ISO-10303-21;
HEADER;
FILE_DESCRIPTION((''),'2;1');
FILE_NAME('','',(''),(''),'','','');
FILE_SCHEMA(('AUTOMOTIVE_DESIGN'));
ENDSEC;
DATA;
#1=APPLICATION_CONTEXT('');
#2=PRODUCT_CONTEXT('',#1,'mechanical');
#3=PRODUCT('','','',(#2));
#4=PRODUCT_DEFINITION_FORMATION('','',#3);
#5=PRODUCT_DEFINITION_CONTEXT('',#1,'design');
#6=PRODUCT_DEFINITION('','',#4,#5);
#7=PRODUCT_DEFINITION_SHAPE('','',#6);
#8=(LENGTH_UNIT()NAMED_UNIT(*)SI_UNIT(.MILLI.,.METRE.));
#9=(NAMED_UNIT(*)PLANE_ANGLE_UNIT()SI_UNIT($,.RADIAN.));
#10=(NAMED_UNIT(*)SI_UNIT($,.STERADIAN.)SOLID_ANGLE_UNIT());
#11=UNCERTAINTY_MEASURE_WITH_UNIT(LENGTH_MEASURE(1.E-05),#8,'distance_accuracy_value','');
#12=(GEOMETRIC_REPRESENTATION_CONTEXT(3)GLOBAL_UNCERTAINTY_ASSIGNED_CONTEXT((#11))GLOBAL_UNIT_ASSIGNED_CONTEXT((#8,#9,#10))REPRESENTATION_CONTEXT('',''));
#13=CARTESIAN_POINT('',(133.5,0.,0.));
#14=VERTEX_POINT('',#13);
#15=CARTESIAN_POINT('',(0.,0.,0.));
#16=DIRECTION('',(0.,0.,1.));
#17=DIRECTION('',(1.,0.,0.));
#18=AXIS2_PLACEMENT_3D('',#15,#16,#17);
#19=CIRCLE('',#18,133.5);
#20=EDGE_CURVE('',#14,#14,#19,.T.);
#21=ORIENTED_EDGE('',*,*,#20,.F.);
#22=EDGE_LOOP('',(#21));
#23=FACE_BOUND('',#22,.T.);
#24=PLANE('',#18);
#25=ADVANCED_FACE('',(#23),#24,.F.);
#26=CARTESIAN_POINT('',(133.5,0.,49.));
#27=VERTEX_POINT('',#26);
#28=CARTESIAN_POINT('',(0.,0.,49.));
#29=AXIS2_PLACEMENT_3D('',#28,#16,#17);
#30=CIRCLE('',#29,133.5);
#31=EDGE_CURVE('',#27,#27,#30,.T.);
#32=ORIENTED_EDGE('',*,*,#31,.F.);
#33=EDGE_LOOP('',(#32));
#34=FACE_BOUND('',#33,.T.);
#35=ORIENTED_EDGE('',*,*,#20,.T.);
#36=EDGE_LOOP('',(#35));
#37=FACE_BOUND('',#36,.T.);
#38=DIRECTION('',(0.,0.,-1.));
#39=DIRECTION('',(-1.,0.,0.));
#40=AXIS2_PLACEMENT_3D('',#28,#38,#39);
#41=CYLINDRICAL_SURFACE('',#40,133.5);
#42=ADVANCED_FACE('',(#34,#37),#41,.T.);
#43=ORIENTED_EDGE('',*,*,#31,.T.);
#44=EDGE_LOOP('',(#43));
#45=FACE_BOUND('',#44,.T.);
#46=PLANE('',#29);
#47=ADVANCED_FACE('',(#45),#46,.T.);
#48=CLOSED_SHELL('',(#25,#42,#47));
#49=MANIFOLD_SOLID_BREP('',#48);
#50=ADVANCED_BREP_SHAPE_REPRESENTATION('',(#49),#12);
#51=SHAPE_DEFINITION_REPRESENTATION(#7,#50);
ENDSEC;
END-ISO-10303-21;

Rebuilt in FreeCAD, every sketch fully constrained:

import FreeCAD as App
import Part
import Sketcher

V = App.Vector
Q = App.Units.Quantity

doc = App.newDocument("Part")
body = doc.addObject("PartDesign::Body", "Body")

sketch1 = body.newObject("Sketcher::SketchObject", "Sketch")
sketch1.AttachmentSupport = (doc.getObject("XY_Plane"), [""])
sketch1.MapMode = "FlatFace"
sketch1.addGeometry(Part.Circle(V(0, 0, 0), V(0, 0, 1), 133.5), False)
sketch1.addConstraint(Sketcher.Constraint("Coincident", 0, 3, -1, 1))
sketch1.addConstraint(Sketcher.Constraint("Diameter", 0, Q("267 mm")))
pad1 = body.newObject("PartDesign::Pad", "Pad")
pad1.Profile = sketch1
pad1.Length = 49

doc.recompute()
